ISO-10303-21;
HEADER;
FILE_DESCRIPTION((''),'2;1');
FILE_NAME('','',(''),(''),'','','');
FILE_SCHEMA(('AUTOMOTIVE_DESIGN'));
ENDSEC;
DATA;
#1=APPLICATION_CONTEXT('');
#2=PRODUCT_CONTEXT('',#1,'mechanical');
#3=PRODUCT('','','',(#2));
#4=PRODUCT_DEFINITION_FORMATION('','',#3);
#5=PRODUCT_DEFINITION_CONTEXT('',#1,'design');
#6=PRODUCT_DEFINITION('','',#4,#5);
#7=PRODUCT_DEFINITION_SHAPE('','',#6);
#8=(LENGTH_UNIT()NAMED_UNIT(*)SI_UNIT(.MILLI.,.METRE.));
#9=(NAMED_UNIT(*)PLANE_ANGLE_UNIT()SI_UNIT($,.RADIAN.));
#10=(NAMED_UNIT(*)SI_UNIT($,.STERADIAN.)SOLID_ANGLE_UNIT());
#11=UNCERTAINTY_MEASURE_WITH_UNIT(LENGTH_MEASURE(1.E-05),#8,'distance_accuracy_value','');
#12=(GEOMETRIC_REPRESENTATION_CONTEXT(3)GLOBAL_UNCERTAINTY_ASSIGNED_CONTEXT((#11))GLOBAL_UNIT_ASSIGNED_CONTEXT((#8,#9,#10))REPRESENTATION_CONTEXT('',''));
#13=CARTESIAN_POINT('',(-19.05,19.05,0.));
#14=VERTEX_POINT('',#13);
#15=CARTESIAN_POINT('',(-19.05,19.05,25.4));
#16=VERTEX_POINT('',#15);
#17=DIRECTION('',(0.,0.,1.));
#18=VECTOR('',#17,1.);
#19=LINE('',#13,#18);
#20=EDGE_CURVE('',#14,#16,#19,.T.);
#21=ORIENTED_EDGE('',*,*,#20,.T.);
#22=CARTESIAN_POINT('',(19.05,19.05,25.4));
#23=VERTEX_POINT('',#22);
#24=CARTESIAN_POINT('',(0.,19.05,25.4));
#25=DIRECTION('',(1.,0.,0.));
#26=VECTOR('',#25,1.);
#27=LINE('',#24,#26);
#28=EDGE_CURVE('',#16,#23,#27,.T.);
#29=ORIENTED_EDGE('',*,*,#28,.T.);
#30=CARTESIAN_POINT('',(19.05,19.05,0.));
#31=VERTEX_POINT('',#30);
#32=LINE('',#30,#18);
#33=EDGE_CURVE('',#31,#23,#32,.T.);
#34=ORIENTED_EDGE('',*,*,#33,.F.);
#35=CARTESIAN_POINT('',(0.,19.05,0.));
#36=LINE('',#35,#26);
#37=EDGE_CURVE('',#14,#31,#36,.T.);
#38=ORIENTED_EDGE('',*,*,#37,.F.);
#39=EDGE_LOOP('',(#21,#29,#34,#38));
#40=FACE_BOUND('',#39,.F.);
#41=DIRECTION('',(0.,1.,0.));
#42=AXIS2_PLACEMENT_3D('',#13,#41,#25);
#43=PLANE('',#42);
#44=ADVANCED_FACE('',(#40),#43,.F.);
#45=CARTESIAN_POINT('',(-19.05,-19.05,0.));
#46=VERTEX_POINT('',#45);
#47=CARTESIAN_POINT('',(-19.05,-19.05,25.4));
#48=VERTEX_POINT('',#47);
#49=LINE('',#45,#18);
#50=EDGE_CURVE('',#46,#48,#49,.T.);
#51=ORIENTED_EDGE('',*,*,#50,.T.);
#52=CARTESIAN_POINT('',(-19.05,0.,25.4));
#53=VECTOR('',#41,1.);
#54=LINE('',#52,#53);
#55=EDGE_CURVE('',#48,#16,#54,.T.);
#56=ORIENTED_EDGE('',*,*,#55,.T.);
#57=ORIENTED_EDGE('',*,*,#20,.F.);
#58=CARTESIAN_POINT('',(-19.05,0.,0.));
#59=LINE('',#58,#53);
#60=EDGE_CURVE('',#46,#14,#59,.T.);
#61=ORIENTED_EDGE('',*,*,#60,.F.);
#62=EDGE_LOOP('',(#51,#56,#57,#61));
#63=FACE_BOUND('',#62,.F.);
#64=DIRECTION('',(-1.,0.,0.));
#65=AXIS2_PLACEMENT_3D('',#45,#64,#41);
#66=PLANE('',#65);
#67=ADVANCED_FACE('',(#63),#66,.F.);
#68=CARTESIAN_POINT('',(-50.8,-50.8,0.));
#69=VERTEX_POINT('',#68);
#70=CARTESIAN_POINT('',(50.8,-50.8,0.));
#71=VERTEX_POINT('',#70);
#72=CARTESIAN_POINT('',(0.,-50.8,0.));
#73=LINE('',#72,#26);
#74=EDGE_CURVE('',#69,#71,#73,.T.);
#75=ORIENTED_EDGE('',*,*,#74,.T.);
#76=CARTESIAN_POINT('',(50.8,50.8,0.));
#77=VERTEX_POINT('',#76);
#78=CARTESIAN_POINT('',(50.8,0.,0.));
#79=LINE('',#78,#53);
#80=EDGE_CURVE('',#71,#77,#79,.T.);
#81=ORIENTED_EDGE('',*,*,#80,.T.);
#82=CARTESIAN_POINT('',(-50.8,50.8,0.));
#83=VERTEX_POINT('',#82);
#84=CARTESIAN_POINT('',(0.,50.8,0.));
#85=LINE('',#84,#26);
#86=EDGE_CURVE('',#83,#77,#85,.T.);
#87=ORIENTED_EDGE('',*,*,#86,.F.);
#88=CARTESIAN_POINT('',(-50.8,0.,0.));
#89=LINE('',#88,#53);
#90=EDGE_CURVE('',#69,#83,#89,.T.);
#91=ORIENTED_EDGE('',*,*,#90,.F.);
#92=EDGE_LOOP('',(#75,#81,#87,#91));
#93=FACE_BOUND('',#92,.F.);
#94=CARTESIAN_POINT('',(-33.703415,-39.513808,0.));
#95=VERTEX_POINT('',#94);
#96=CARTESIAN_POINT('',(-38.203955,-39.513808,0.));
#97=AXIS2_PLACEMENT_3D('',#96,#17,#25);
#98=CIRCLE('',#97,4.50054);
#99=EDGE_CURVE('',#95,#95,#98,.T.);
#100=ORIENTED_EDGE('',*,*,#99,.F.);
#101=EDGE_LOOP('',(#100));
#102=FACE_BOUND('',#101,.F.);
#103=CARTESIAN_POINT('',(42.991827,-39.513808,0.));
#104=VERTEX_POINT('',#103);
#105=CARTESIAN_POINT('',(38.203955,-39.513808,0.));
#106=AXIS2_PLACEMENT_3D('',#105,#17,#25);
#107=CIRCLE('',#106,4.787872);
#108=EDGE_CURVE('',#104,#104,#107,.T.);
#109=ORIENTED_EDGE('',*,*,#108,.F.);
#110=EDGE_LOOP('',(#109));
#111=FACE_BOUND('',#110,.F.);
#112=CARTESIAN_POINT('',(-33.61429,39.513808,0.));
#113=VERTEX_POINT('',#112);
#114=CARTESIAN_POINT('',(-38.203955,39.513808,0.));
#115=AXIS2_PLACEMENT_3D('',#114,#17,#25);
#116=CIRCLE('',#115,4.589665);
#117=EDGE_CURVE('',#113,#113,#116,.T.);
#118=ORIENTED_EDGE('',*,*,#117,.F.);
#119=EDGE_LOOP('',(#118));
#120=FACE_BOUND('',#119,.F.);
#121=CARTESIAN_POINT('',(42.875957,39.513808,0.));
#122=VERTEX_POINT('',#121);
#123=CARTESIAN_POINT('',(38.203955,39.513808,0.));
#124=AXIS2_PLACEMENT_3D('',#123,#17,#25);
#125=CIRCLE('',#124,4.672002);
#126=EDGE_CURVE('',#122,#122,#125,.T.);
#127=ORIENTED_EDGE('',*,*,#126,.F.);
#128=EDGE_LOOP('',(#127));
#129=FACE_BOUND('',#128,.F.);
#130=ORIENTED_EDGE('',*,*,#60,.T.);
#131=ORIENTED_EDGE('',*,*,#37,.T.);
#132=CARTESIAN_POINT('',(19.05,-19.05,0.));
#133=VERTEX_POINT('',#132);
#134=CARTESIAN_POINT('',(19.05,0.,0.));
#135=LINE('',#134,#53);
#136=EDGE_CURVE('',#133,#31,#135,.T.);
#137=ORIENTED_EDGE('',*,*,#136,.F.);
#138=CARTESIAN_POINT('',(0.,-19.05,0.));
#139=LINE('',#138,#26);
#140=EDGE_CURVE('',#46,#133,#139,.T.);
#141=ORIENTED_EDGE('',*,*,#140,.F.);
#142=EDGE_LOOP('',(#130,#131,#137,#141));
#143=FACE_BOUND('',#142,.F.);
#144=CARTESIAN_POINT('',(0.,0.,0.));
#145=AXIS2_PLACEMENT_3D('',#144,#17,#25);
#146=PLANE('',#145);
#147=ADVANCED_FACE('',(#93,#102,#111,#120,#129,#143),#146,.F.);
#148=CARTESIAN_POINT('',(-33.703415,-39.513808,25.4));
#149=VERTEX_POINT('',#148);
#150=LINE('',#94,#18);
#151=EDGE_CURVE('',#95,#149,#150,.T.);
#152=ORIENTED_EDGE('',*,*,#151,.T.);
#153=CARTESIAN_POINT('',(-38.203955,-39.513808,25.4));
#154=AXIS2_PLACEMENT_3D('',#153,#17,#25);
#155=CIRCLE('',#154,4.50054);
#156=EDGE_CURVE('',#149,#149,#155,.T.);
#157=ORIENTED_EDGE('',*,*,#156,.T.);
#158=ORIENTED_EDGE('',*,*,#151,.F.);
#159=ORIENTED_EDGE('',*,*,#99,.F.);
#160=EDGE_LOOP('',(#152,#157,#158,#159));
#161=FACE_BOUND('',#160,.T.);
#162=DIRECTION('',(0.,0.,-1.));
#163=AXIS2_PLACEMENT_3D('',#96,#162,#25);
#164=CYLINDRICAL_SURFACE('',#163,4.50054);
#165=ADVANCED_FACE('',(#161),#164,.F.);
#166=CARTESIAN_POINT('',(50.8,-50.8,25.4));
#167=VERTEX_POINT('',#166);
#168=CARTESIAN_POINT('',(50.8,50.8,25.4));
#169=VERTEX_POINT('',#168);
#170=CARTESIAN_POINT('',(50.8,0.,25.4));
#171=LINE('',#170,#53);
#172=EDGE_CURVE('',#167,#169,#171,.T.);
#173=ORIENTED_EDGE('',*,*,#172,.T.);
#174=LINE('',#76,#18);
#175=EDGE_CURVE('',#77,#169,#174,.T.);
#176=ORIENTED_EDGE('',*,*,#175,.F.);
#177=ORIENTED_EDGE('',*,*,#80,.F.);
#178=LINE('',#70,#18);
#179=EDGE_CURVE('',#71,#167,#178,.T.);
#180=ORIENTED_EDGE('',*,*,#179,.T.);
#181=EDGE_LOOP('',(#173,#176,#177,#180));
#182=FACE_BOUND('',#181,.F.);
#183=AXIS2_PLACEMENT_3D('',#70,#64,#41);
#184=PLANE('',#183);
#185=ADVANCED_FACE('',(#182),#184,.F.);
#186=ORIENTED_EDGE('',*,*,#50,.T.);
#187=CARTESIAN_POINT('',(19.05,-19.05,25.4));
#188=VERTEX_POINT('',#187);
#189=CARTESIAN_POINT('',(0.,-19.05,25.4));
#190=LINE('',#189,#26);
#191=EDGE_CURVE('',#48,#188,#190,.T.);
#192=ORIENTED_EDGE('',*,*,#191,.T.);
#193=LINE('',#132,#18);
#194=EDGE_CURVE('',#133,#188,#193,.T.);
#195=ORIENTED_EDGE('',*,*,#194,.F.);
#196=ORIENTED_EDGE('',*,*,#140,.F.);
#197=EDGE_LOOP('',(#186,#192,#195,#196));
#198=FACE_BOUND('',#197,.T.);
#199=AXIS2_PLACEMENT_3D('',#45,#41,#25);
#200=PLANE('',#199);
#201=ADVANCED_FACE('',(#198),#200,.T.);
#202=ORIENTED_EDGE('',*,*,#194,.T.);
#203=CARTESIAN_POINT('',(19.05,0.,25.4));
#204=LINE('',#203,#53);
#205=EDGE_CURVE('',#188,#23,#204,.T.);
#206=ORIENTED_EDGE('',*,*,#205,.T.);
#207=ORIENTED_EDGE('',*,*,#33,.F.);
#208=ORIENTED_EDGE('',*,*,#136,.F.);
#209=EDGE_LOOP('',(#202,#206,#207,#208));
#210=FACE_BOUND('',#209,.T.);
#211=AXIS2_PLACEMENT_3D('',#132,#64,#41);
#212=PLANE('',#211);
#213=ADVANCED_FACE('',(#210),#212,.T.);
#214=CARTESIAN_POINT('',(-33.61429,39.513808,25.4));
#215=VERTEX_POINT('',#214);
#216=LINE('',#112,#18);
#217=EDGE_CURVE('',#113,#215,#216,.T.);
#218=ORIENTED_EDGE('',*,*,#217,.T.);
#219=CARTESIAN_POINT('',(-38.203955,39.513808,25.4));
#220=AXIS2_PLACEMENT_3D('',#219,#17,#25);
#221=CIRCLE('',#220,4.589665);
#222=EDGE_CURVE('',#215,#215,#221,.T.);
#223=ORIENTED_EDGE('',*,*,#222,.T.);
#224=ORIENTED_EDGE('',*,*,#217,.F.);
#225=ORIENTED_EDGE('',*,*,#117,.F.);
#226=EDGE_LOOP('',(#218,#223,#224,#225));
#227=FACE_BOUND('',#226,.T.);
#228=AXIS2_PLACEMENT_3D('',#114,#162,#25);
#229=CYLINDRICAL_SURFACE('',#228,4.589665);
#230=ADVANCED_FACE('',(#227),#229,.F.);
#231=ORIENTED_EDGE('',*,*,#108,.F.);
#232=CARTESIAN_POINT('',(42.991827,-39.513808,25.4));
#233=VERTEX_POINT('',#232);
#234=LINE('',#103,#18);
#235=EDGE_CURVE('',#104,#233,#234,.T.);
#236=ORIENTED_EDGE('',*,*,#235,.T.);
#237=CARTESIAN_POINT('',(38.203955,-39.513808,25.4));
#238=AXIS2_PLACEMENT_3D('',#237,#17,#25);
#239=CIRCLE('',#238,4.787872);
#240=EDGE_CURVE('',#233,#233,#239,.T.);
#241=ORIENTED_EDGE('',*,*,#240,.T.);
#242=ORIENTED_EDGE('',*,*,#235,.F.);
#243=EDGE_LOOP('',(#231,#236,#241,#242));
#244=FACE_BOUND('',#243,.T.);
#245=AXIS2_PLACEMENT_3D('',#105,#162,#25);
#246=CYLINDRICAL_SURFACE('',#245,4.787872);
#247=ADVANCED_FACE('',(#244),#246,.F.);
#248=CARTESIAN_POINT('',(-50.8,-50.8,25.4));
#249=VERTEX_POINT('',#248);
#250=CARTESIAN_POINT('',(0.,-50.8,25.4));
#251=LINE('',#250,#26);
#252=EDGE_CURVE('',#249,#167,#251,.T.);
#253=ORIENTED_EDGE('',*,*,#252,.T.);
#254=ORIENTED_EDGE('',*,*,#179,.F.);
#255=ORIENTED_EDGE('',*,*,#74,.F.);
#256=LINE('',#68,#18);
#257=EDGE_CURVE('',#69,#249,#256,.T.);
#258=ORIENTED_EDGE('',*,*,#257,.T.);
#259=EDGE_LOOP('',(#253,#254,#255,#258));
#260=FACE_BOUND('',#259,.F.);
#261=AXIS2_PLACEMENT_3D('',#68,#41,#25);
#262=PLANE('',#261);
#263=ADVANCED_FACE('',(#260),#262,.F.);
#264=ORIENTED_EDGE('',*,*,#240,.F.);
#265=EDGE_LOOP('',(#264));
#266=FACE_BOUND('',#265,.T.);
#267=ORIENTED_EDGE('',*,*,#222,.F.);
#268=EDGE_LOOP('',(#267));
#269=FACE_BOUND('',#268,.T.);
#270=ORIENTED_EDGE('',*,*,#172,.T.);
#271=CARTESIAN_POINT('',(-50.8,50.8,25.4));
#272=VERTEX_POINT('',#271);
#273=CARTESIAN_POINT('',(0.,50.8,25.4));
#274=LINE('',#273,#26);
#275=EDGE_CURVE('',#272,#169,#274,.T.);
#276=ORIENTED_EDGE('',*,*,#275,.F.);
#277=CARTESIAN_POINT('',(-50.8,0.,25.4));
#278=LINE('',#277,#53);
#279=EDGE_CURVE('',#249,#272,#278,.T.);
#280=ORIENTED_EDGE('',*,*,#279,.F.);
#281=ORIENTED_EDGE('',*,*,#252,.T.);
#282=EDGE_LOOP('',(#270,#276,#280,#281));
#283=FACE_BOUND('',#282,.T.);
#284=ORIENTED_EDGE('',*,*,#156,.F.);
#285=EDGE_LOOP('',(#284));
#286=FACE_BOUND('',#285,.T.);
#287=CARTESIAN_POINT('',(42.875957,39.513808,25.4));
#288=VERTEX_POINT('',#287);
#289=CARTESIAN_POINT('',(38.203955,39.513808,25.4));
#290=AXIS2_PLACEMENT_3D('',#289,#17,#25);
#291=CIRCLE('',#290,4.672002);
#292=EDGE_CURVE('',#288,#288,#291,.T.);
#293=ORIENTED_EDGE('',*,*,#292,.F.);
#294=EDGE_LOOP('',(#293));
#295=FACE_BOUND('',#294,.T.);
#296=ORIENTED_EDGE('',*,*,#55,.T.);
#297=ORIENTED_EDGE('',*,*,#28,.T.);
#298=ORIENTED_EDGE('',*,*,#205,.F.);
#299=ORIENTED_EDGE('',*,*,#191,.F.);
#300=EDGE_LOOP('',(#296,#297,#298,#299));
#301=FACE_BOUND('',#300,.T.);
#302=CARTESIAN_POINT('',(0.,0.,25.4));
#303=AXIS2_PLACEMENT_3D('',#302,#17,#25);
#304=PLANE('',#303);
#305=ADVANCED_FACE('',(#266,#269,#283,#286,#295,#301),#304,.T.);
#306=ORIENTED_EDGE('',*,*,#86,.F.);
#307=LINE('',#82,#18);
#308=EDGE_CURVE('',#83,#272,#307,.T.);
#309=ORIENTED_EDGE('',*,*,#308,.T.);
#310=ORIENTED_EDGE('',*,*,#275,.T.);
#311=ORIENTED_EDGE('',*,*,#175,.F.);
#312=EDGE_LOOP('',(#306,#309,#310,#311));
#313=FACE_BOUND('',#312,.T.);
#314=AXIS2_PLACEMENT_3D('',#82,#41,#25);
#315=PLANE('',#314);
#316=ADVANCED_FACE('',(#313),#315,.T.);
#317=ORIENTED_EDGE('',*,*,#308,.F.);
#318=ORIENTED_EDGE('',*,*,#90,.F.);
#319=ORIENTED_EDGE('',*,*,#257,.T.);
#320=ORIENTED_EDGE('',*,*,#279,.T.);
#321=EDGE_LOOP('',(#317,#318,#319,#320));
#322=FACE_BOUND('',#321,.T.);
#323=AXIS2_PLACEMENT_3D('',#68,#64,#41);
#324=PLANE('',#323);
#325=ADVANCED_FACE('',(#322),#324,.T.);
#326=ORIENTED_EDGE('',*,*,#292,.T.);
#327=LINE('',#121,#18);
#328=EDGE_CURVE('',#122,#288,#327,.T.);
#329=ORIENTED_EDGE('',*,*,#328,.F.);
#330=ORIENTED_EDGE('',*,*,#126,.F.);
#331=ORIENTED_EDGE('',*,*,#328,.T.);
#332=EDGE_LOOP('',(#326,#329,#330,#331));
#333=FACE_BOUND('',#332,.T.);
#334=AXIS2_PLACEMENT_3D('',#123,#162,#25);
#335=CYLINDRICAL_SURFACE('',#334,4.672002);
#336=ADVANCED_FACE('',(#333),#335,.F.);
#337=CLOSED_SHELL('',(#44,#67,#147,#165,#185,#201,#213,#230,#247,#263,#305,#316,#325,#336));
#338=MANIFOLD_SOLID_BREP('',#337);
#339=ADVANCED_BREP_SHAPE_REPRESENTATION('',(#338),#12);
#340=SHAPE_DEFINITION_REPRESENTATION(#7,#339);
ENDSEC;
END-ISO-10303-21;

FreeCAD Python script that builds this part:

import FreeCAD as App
import Part
import Sketcher
Q = App.Units.Quantity


def add_polygon(sketch, points):
    """Adds a closed chain of lines whose ends are joined by coincident constraints."""
    first, n = sketch.GeometryCount, len(points)
    for a, b in zip(points, points[1:] + points[:1]):
        sketch.addGeometry(Part.LineSegment(App.Vector(*a, 0), App.Vector(*b, 0)), False)
    for i in range(n):
        sketch.addConstraint(Sketcher.Constraint("Coincident", first + i, 2, first + (i + 1) % n, 1))

doc = App.newDocument("Part")
body = doc.addObject("PartDesign::Body", "Body")

# Sketch on XY plane
sketch1 = body.newObject("Sketcher::SketchObject", "Sketch")
sketch1.AttachmentSupport = (doc.getObject("XY_Plane"), [""])
sketch1.MapMode = "FlatFace"
add_polygon(sketch1, [(-50.8, 50.8), (-50.8, -50.8), (50.8, -50.8), (50.8, 50.8)])  # lines 0-3
sketch1.addGeometry(Part.Circle(App.Vector(-38.2, -39.5, 0), App.Vector(0, 0, 1), 4.5), False)  # 4
sketch1.addGeometry(Part.Circle(App.Vector(38.2, -39.5, 0), App.Vector(0, 0, 1), 4.8), False)  # 5
add_polygon(sketch1, [(19.1, -19.1), (-19.1, -19.1), (-19.1, 19.1), (19.1, 19.1)])  # lines 6-9
sketch1.addGeometry(Part.Circle(App.Vector(-38.2, 39.5, 0), App.Vector(0, 0, 1), 4.6), False)  # 10
sketch1.addGeometry(Part.Circle(App.Vector(38.2, 39.5, 0), App.Vector(0, 0, 1), 4.7), False)  # 11
sketch1.addConstraint(Sketcher.Constraint("Vertical", 0))
sketch1.addConstraint(Sketcher.Constraint("Horizontal", 1))
sketch1.addConstraint(Sketcher.Constraint("Vertical", 2))
sketch1.addConstraint(Sketcher.Constraint("Horizontal", 3))
sketch1.addConstraint(Sketcher.Constraint("Horizontal", 6))
sketch1.addConstraint(Sketcher.Constraint("Vertical", 7))
sketch1.addConstraint(Sketcher.Constraint("Horizontal", 8))
sketch1.addConstraint(Sketcher.Constraint("Vertical", 9))
sketch1.addConstraint(Sketcher.Constraint("Symmetric", 5, 3, 10, 3, -1, 1))
sketch1.addConstraint(Sketcher.Constraint("Symmetric", 4, 3, 11, 3, -1, 1))
sketch1.addConstraint(Sketcher.Constraint("Symmetric", 0, 2, 2, 2, -1, 1))
sketch1.addConstraint(Sketcher.Constraint("Symmetric", 6, 2, 8, 2, -1, 1))
sketch1.addConstraint(Sketcher.Constraint("Symmetric", 4, 3, 5, 3, -2))
sketch1.addConstraint(Sketcher.Constraint("Equal", 3, 0))
sketch1.addConstraint(Sketcher.Constraint("Equal", 8, 7))
sketch1.addConstraint(Sketcher.Constraint("DistanceX", 1, 1, 1, 2, Q("4 in")))
sketch1.addConstraint(Sketcher.Constraint("DistanceX", 6, 2, 6, 1, Q("1.5 in")))
sketch1.addConstraint(Sketcher.Constraint("Diameter", 4, Q("9.00108 mm")))
sketch1.addConstraint(Sketcher.Constraint("Diameter", 10, Q("9.17933 mm")))
sketch1.addConstraint(Sketcher.Constraint("Diameter", 5, Q("9.575744 mm")))
sketch1.addConstraint(Sketcher.Constraint("Diameter", 11, Q("9.344004 mm")))
sketch1.addConstraint(Sketcher.Constraint("DistanceX", 4, 3, 5, 3, Q("76.40791 mm")))
sketch1.addConstraint(Sketcher.Constraint("DistanceY", 4, 3, -1, 1, Q("39.513808 mm")))
pad1 = body.newObject("PartDesign::Pad", "Pad")
pad1.Profile = sketch1
pad1.Length = Q("1 in")

doc.recompute()
